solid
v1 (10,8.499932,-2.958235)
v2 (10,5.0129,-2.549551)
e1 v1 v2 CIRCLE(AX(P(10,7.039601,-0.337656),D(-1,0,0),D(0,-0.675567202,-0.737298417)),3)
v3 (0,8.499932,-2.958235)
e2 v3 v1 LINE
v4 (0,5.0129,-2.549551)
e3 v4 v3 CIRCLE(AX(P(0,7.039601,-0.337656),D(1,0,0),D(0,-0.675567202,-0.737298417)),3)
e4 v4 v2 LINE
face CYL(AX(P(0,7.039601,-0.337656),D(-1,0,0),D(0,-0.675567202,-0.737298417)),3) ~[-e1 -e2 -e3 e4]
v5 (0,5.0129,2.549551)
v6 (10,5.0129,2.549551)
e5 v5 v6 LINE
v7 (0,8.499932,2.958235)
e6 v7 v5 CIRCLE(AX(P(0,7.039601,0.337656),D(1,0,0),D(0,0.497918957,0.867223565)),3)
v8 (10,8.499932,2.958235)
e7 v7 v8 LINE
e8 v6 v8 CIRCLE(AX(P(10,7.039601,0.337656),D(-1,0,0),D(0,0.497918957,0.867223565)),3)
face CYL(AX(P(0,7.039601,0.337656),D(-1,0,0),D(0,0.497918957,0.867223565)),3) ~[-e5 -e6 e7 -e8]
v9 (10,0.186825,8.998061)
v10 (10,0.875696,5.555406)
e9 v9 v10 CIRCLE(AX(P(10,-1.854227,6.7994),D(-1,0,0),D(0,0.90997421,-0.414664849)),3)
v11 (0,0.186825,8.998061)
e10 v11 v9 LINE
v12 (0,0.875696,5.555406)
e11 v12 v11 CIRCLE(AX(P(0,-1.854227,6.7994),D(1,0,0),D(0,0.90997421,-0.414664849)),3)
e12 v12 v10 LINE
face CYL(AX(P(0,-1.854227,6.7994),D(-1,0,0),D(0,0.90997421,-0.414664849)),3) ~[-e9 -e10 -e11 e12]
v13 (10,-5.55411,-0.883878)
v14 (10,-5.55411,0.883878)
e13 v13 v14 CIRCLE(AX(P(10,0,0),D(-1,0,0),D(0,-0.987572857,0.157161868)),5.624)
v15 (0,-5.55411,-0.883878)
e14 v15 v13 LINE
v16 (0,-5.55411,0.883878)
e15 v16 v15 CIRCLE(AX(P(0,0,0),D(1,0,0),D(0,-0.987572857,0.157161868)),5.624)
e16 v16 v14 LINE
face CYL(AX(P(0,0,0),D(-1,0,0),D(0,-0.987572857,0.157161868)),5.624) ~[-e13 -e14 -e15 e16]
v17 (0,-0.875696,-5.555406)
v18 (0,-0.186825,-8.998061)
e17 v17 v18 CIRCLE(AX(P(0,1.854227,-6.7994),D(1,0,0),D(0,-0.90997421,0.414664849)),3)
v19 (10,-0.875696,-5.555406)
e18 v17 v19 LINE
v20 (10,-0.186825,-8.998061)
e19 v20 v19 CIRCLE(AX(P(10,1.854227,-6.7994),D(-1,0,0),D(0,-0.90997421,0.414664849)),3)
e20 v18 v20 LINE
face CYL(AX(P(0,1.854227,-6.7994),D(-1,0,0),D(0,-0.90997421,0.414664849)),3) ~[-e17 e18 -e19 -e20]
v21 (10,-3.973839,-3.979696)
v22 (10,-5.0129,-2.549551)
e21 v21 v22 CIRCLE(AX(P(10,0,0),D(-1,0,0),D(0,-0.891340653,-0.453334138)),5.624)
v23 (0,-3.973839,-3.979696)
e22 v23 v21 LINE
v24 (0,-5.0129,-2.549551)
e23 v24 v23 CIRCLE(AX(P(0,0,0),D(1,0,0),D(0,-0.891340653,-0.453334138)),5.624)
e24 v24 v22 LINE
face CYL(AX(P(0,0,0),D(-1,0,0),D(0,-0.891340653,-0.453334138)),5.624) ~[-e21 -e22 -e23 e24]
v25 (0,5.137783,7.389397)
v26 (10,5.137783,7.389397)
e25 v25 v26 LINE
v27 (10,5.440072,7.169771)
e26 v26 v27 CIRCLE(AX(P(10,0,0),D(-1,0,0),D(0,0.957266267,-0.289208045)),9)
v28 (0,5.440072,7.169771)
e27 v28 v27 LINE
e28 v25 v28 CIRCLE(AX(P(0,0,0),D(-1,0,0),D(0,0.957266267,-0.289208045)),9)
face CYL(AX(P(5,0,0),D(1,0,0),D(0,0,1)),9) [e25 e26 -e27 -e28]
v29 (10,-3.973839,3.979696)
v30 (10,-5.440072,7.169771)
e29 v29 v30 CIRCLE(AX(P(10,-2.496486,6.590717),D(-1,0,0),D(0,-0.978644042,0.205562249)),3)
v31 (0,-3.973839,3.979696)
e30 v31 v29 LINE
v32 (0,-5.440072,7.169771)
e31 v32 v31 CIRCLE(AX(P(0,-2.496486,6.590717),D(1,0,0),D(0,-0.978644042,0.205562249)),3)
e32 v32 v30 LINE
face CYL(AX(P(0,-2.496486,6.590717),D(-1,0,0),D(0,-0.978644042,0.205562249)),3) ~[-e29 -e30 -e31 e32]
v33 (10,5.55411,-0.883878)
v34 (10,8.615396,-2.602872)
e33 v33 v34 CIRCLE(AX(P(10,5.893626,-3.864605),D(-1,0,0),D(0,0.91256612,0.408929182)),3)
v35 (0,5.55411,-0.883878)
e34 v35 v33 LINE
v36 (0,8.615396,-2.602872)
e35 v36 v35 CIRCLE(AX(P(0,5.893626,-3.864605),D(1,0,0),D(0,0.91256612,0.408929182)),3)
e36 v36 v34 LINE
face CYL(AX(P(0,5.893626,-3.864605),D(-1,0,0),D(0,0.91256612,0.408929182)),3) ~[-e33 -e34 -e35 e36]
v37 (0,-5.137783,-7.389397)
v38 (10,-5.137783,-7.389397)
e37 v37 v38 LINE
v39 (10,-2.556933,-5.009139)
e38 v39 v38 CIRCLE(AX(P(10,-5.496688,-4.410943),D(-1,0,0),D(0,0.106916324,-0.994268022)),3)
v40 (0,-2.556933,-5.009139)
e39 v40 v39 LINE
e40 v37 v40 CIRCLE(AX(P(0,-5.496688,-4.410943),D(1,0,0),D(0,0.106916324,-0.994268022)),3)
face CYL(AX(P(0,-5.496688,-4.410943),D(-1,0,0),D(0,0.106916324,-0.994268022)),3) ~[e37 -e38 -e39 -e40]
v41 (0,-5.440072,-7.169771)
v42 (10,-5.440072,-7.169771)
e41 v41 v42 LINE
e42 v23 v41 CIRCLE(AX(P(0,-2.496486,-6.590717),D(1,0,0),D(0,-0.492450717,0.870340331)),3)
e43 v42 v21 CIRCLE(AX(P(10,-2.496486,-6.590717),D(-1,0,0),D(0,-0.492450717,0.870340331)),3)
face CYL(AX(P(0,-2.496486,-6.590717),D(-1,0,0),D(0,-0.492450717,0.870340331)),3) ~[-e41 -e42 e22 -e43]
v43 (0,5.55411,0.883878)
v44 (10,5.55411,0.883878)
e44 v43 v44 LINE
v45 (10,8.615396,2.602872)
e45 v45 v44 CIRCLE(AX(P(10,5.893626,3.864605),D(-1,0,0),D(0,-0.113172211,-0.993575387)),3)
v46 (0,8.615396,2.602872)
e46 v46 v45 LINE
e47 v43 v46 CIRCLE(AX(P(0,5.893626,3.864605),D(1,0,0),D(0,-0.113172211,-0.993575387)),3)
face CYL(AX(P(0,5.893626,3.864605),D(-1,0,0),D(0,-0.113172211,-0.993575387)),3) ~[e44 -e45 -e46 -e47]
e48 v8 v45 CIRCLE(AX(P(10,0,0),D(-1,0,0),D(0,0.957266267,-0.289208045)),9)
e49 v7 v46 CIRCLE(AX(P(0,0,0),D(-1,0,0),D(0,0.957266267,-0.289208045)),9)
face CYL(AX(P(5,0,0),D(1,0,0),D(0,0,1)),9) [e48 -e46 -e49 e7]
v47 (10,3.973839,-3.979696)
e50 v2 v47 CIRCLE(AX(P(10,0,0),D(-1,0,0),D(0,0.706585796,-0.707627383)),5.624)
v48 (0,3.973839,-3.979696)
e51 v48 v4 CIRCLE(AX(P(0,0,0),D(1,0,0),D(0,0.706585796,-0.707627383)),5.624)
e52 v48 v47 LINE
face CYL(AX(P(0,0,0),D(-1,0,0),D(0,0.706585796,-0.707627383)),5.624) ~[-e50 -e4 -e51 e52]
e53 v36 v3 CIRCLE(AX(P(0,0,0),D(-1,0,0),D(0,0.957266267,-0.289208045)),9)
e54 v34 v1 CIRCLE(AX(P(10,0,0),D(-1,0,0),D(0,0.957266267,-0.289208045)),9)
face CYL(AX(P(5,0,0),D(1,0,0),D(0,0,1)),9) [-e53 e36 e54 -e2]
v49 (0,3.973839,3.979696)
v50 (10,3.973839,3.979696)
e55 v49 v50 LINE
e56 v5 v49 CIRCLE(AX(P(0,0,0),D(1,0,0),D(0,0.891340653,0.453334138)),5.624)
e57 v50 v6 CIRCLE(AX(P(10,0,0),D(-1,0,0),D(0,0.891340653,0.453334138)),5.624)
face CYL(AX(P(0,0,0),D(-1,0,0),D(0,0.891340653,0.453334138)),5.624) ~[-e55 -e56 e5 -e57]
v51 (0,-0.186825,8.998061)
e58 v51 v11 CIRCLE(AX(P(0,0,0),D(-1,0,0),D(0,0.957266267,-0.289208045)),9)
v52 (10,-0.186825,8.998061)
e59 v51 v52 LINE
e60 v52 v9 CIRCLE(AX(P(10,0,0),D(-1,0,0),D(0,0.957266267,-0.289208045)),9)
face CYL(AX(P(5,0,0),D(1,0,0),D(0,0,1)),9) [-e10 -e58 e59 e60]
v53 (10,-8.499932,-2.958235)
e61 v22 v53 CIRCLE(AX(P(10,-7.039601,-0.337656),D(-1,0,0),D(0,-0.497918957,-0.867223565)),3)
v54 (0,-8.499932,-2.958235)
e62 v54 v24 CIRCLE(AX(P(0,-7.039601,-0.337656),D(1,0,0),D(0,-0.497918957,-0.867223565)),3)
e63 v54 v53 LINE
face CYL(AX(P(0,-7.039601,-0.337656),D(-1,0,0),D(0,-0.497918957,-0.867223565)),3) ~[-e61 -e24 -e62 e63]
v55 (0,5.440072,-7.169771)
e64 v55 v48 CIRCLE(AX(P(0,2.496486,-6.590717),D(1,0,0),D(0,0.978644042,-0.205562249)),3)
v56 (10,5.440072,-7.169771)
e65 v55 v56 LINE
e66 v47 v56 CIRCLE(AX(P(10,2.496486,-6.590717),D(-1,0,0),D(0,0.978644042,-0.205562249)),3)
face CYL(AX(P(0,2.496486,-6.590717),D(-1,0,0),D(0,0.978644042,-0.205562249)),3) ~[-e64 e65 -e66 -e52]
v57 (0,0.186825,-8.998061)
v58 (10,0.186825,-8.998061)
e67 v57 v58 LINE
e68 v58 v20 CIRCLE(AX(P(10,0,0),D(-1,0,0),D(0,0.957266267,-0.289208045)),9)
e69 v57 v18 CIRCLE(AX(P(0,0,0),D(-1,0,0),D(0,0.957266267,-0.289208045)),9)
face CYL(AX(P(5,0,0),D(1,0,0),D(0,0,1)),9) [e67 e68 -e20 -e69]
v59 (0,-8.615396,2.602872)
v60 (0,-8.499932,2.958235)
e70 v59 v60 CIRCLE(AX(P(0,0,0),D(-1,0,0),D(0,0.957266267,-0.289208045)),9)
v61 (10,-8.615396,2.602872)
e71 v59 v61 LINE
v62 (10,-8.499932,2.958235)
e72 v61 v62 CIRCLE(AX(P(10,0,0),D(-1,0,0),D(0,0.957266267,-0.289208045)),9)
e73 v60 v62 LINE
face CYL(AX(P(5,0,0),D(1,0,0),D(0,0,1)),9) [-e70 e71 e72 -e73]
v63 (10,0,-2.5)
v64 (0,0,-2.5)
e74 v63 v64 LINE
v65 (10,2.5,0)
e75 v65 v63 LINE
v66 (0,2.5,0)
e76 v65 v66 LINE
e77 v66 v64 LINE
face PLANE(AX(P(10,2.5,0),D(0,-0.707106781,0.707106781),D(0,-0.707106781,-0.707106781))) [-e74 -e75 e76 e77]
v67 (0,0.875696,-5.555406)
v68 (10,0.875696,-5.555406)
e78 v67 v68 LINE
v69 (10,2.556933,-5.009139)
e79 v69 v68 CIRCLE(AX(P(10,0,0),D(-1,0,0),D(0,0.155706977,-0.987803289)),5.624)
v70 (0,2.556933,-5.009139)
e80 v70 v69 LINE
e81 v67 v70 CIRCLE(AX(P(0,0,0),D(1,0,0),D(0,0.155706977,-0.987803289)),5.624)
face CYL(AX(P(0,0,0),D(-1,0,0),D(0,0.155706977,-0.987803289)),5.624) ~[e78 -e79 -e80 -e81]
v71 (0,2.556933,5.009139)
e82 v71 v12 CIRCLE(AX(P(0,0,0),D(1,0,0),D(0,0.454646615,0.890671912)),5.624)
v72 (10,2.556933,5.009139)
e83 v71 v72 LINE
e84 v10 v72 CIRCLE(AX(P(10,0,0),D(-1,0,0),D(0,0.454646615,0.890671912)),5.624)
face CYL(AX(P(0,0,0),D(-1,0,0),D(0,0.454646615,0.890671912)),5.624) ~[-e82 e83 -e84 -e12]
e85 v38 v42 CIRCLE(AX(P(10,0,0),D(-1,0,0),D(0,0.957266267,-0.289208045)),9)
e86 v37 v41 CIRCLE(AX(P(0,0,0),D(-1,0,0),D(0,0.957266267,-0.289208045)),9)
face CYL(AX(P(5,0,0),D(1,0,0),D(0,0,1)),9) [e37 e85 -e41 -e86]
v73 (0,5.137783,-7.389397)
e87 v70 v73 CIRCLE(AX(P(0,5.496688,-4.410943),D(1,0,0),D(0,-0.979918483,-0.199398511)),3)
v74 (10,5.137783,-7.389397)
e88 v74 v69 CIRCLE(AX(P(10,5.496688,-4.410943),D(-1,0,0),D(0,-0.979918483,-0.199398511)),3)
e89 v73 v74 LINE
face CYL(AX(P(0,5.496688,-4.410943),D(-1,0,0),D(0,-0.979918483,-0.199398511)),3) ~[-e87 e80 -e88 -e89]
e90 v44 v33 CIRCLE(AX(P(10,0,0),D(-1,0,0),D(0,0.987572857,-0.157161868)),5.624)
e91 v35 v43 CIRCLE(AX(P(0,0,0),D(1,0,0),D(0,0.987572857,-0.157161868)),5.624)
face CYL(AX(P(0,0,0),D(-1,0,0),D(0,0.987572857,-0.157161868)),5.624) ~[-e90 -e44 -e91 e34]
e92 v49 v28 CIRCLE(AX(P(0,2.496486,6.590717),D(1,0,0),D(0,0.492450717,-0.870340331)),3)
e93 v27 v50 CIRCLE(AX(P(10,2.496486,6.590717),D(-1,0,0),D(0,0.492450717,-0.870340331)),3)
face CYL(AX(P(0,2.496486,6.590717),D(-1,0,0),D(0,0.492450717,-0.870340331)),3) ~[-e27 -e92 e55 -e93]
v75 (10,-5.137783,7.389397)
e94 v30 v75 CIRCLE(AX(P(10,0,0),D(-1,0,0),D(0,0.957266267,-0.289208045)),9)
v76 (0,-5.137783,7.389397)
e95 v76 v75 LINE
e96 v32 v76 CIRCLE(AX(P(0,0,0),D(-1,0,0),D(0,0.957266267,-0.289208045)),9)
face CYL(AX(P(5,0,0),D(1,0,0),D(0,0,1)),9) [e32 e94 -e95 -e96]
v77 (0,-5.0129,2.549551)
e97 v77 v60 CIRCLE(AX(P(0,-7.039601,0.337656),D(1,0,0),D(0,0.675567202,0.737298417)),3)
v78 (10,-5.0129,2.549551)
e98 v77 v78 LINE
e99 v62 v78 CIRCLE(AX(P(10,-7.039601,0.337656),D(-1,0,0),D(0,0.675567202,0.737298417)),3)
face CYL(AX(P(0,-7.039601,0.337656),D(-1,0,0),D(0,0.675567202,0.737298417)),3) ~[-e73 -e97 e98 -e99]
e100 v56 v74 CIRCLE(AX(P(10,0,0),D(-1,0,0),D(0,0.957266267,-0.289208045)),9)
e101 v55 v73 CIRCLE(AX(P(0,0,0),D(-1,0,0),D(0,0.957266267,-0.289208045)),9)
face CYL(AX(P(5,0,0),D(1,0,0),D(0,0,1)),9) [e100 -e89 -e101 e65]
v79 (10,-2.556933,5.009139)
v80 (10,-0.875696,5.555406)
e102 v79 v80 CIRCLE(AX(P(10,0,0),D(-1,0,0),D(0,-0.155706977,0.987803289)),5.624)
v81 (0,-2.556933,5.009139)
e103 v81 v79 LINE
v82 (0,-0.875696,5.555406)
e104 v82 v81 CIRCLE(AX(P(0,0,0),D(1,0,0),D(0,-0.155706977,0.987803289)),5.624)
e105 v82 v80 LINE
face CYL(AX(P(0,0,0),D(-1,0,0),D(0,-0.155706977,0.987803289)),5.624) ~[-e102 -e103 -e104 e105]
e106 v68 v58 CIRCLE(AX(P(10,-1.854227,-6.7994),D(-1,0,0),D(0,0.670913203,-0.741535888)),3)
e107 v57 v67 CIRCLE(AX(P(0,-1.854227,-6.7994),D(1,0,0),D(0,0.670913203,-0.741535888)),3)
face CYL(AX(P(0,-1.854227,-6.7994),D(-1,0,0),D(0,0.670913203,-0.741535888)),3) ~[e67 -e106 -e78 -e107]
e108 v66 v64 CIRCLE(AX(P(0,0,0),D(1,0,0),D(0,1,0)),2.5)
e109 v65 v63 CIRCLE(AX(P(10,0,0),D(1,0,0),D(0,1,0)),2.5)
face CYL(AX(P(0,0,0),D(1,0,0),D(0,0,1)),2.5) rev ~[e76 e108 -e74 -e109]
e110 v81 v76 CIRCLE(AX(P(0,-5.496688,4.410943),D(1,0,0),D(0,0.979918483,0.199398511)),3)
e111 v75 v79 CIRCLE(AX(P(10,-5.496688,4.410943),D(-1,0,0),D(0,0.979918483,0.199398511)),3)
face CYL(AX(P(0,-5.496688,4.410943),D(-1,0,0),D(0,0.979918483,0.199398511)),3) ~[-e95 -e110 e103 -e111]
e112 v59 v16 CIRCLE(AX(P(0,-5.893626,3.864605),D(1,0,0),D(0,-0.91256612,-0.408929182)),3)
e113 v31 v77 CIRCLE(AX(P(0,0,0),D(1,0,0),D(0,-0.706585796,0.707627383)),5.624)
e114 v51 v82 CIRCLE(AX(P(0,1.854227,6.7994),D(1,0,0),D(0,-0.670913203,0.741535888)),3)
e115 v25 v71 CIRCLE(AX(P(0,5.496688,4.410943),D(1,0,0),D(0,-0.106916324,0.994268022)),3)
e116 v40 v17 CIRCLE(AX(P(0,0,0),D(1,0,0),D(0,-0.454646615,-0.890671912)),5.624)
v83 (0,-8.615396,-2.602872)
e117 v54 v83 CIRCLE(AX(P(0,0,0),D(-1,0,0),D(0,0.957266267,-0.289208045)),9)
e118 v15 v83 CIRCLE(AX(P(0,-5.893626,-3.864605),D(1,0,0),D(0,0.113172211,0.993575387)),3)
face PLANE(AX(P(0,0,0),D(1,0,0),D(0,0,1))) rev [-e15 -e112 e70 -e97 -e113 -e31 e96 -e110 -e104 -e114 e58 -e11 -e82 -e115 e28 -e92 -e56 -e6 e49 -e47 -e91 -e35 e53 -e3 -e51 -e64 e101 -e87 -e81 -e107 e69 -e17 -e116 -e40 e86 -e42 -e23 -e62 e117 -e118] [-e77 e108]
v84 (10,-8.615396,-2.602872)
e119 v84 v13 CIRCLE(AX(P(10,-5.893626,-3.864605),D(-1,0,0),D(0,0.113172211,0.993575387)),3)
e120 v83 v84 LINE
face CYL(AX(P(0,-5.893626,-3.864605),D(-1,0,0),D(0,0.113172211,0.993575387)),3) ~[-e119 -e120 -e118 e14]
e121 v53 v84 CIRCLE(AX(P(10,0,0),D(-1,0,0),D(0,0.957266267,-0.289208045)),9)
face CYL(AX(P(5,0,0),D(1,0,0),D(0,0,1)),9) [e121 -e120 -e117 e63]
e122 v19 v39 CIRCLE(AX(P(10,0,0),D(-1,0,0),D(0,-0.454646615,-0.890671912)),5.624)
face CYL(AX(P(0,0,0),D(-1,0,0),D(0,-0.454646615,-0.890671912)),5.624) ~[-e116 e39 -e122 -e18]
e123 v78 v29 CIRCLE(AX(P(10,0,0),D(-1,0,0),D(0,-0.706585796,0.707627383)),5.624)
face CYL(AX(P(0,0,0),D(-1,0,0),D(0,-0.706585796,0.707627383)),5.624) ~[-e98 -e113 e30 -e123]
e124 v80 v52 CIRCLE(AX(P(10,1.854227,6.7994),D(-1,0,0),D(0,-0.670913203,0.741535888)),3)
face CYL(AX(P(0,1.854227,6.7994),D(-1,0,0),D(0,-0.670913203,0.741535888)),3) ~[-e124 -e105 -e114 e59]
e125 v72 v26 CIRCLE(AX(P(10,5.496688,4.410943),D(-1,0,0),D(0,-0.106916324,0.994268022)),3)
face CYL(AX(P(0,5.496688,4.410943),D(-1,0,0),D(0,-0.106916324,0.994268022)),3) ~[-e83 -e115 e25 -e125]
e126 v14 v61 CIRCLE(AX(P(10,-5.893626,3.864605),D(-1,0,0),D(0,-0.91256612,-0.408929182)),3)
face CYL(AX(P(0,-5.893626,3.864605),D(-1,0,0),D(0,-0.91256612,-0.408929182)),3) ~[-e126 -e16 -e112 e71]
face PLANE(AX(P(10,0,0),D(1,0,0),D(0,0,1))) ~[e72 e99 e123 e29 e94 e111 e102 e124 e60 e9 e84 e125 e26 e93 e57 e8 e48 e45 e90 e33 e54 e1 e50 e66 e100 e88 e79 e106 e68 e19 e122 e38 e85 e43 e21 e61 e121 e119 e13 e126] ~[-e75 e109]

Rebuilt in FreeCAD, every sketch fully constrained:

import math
import FreeCAD as App
import Part
import Sketcher
Q = App.Units.Quantity


def add_polygon(sketch, points):
    """Adds a closed chain of lines whose ends are joined by coincident constraints."""
    first, n = sketch.GeometryCount, len(points)
    for a, b in zip(points, points[1:] + points[:1]):
        sketch.addGeometry(Part.LineSegment(App.Vector(*a, 0), App.Vector(*b, 0)), False)
    for i in range(n):
        sketch.addConstraint(Sketcher.Constraint("Coincident", first + i, 2, first + (i + 1) % n, 1))

doc = App.newDocument("Part")
body = doc.addObject("PartDesign::Body", "Body")

sketch1 = body.newObject("Sketcher::SketchObject", "Sketch")
sketch1.AttachmentSupport = (doc.getObject("XZ_Plane"), [""])
sketch1.MapMode = "FlatFace"
add_polygon(sketch1, [(0, -9), (0, 0), (10, 0), (10, -9)])
sketch1.addConstraint(Sketcher.Constraint("Vertical", 0))
sketch1.addConstraint(Sketcher.Constraint("Horizontal", 1))
sketch1.addConstraint(Sketcher.Constraint("Vertical", 2))
sketch1.addConstraint(Sketcher.Constraint("Horizontal", 3))
sketch1.addConstraint(Sketcher.Constraint("Coincident", 0, 2, -1, 1))
sketch1.addConstraint(Sketcher.Constraint("DistanceX", 1, 1, 1, 2, Q("10 mm")))
sketch1.addConstraint(Sketcher.Constraint("DistanceY", 0, 1, 0, 2, Q("9 mm")))
revolution = body.newObject("PartDesign::Revolution", "Revolution")
revolution.Profile = sketch1
revolution.ReferenceAxis = (sketch1, ["H_Axis"])
revolution.Angle = 360

sketch2 = body.newObject("Sketcher::SketchObject", "Sketch001")
sketch2.AttachmentSupport = (doc.getObject("YZ_Plane"), [""])
sketch2.MapMode = "FlatFace"
sketch2.addGeometry(Part.ArcOfCircle(Part.Circle(App.Vector(0, 0, 0), App.Vector(0, 0, 1), 5.6), math.radians(-9.04), math.radians(9.04)), False)
sketch2.addGeometry(Part.ArcOfCircle(Part.Circle(App.Vector(5.9, -3.9, 0), App.Vector(0, 0, 1), 3), math.radians(24), math.radians(96)), False)
sketch2.addGeometry(Part.ArcOfCircle(Part.Circle(App.Vector(0, 0, 0), App.Vector(0, 0, 1), 9), math.radians(-17), math.radians(17)), False)
sketch2.addGeometry(Part.ArcOfCircle(Part.Circle(App.Vector(5.9, 3.9, 0), App.Vector(0, 0, 1), 3), math.radians(-96), math.radians(-24)), False)
sketch2.addConstraint(Sketcher.Constraint("Coincident", 0, 1, 1, 2))
sketch2.addConstraint(Sketcher.Constraint("Coincident", 1, 1, 2, 1))
sketch2.addConstraint(Sketcher.Constraint("Coincident", 2, 2, 3, 2))
sketch2.addConstraint(Sketcher.Constraint("Coincident", 3, 1, 0, 2))
sketch2.addConstraint(Sketcher.Constraint("Coincident", 0, 3, -1, 1))
sketch2.addConstraint(Sketcher.Constraint("Coincident", 2, 3, -1, 1))
sketch2.addConstraint(Sketcher.Constraint("Equal", 1, 3))
sketch2.addConstraint(Sketcher.Constraint("Symmetric", 1, 3, 3, 3, -1))
sketch2.addConstraint(Sketcher.Constraint("Radius", 1, Q("3 mm")))
sketch2.addConstraint(Sketcher.Constraint("Radius", 0, Q("5.624 mm")))
sketch2.addConstraint(Sketcher.Constraint("Radius", 2, Q("9.0254 mm")))
sketch2.addConstraint(Sketcher.Constraint("DistanceX", 1, 3, 1, 1, Q("2.737698 mm")))
sketch2.addConstraint(Sketcher.Constraint("DistanceX", -1, 1, 0, 1, Q("5.55411 mm")))
pocket1 = body.newObject("PartDesign::Pocket", "Pocket")
pocket1.Profile = sketch2
pocket1.Type = "ThroughAll"
pocket1.Reversed = True
doc.recompute()

polarpattern = body.newObject("PartDesign::PolarPattern", "PolarPattern")
polarpattern.Originals = [pocket1]
polarpattern.Axis = (doc.getObject("X_Axis"), [""])
polarpattern.Angle = 360
polarpattern.Occurrences = 10
body.Tip = polarpattern

sketch3 = body.newObject("Sketcher::SketchObject", "Sketch002")
sketch3.AttachmentSupport = (doc.getObject("YZ_Plane"), [""])
sketch3.MapMode = "FlatFace"
sketch3.addGeometry(Part.Circle(App.Vector(0, 0, 0), App.Vector(0, 0, 1), 2.5), False)
sketch3.addConstraint(Sketcher.Constraint("Coincident", 0, 3, -1, 1))
sketch3.addConstraint(Sketcher.Constraint("Diameter", 0, Q("5 mm")))
pocket2 = body.newObject("PartDesign::Pocket", "Pocket001")
pocket2.Profile = sketch3
pocket2.Length = 100.000102
pocket2.Midplane = True

sketch4 = body.newObject("Sketcher::SketchObject", "Sketch003")
sketch4.AttachmentSupport = (doc.getObject("YZ_Plane"), [""])
sketch4.MapMode = "FlatFace"
sketch4.AttachmentOffset = App.Placement(App.Vector(0, 0, 10), App.Rotation())
sketch4.addGeometry(Part.LineSegment(App.Vector(2.5, 0, 0), App.Vector(0, -2.5, 0)), False)
sketch4.addGeometry(Part.ArcOfCircle(Part.Circle(App.Vector(0, 0, 0), App.Vector(0, 0, 1), 2.5), math.radians(-90), math.radians(0)), False)
sketch4.addConstraint(Sketcher.Constraint("Coincident", 0, 1, 1, 2))
sketch4.addConstraint(Sketcher.Constraint("Coincident", 1, 1, 0, 2))
sketch4.addConstraint(Sketcher.Constraint("Coincident", 1, 3, -1, 1))
sketch4.addConstraint(Sketcher.Constraint("PointOnObject", 0, 1, -1))
sketch4.addConstraint(Sketcher.Constraint("PointOnObject", 1, 1, -2))
sketch4.addConstraint(Sketcher.Constraint("Radius", 1, Q("2.5 mm")))
pad1 = body.newObject("PartDesign::Pad", "Pad")
pad1.Profile = sketch4
pad1.Length = 10
pad1.Reversed = True

doc.recompute()
